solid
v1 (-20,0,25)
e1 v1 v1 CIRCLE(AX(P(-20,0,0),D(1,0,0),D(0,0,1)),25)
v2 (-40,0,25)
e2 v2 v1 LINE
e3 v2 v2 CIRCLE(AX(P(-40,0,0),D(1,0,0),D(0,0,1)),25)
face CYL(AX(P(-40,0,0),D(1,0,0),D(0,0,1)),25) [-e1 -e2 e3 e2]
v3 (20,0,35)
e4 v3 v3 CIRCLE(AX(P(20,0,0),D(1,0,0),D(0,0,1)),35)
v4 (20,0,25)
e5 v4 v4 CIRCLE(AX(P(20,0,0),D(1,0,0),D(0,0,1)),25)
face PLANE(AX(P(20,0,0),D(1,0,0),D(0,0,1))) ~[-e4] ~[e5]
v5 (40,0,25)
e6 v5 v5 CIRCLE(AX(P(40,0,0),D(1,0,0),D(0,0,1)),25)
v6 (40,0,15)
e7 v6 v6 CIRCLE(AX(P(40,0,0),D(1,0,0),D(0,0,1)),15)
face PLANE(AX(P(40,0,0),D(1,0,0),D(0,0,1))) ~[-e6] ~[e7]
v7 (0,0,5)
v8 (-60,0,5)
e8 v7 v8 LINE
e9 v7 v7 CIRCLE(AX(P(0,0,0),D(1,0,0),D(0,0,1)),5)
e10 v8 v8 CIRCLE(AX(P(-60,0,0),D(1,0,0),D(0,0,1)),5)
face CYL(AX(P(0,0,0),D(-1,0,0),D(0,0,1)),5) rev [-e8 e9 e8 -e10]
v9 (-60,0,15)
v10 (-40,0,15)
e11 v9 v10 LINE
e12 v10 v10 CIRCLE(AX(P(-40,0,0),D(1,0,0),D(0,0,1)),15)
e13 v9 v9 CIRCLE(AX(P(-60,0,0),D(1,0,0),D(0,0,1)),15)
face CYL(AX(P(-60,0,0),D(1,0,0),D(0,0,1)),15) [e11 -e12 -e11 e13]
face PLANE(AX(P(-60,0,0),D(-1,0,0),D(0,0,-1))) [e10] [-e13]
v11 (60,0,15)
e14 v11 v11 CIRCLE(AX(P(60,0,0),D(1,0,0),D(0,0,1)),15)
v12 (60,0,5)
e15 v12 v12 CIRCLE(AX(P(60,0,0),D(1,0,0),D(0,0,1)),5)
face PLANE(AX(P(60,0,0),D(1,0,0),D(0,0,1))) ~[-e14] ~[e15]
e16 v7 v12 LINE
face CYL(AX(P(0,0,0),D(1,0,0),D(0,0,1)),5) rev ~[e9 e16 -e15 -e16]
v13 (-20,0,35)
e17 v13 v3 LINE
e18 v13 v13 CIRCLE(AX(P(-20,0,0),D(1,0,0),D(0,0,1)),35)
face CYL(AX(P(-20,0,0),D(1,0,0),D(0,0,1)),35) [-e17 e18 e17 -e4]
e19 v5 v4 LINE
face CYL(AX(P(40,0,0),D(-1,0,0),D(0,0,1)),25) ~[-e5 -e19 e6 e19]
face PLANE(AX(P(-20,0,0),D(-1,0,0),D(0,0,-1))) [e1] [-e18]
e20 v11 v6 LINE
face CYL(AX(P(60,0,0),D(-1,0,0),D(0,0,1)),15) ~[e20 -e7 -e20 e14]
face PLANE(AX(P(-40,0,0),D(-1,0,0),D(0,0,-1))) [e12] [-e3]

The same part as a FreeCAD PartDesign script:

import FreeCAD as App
import Part
import Sketcher


def add_polygon(sketch, points):
    """Adds a closed chain of lines whose ends are joined by coincident constraints."""
    first, n = sketch.GeometryCount, len(points)
    for a, b in zip(points, points[1:] + points[:1]):
        sketch.addGeometry(Part.LineSegment(App.Vector(*a, 0), App.Vector(*b, 0)), False)
    for i in range(n):
        sketch.addConstraint(Sketcher.Constraint("Coincident", first + i, 2, first + (i + 1) % n, 1))

doc = App.newDocument("Part")
params = doc.addObject("Spreadsheet::Sheet", "Params")
for row, (alias, value) in enumerate([
    ("sketch1_width", "20 mm"),
    ("sketch1_height", "30 mm"),
    ("revolution_angle", "360 deg"),
], start=1):
    params.set(f"A{row}", alias)
    params.set(f"B{row}", "=" + value)
    params.setAlias(f"B{row}", alias)

body = doc.addObject("PartDesign::Body", "Body")

# Sketch on XZ plane
sketch1 = body.newObject("Sketcher::SketchObject", "Sketch")
sketch1.AttachmentSupport = (doc.getObject("XZ_Plane"), [""])
sketch1.MapMode = "FlatFace"
add_polygon(sketch1, [(20, 35), (0, 35), (0, 5), (60, 5), (60, 15), (40, 15), (40, 25), (20, 25)])  # lines 0-7
sketch1.addConstraint(Sketcher.Constraint("Horizontal", 0))
sketch1.addConstraint(Sketcher.Constraint("Vertical", 1))
sketch1.addConstraint(Sketcher.Constraint("Horizontal", 2))
sketch1.addConstraint(Sketcher.Constraint("Vertical", 3))
sketch1.addConstraint(Sketcher.Constraint("Horizontal", 4))
sketch1.addConstraint(Sketcher.Constraint("Vertical", 5))
sketch1.addConstraint(Sketcher.Constraint("Horizontal", 6))
sketch1.addConstraint(Sketcher.Constraint("Vertical", 7))
sketch1.addConstraint(Sketcher.Constraint("PointOnObject", 0, 2, -2))
sketch1.addConstraint(Sketcher.Constraint("Equal", 0, 4))
sketch1.addConstraint(Sketcher.Constraint("Equal", 4, 6))
sketch1.addConstraint(Sketcher.Constraint("Equal", 3, 5))
sketch1.addConstraint(Sketcher.Constraint("Equal", 5, 7))
sketch1.addConstraint(Sketcher.Constraint("DistanceX", 0, 2, 0, 1, 20.0))
sketch1.addConstraint(Sketcher.Constraint("DistanceY", 1, 2, 1, 1, 30.0))
sketch1.addConstraint(Sketcher.Constraint("DistanceY", -1, 1, 0, 2, 35.0))
sketch1.setExpression("Constraints[21]", "Params.sketch1_width")
sketch1.setExpression("Constraints[22]", "Params.sketch1_height")
revolution = body.newObject("PartDesign::Revolution", "Revolution")
revolution.Profile = sketch1
revolution.ReferenceAxis = (sketch1, ["H_Axis"])
revolution.setExpression("Angle", "Params.revolution_angle")
body2 = doc.addObject("PartDesign::Body", "Body001")
doc.recompute()

body2.BaseFeature = body
doc.recompute()

mirroring = doc.addObject("Part::Mirroring", "Mirroring")
mirroring.Source = body
mirroring.Base = App.Vector(0, 0, 0)
mirroring.Normal = App.Vector(1, 0, 0)
body3 = doc.addObject("PartDesign::Body", "Body002")
body3.BaseFeature = mirroring
boolean = body2.newObject("PartDesign::Boolean", "Boolean")
boolean.Type = "Fuse"
boolean.addObjects([body3])
doc.recompute()
mirroring.Visibility = False

doc.recompute()
